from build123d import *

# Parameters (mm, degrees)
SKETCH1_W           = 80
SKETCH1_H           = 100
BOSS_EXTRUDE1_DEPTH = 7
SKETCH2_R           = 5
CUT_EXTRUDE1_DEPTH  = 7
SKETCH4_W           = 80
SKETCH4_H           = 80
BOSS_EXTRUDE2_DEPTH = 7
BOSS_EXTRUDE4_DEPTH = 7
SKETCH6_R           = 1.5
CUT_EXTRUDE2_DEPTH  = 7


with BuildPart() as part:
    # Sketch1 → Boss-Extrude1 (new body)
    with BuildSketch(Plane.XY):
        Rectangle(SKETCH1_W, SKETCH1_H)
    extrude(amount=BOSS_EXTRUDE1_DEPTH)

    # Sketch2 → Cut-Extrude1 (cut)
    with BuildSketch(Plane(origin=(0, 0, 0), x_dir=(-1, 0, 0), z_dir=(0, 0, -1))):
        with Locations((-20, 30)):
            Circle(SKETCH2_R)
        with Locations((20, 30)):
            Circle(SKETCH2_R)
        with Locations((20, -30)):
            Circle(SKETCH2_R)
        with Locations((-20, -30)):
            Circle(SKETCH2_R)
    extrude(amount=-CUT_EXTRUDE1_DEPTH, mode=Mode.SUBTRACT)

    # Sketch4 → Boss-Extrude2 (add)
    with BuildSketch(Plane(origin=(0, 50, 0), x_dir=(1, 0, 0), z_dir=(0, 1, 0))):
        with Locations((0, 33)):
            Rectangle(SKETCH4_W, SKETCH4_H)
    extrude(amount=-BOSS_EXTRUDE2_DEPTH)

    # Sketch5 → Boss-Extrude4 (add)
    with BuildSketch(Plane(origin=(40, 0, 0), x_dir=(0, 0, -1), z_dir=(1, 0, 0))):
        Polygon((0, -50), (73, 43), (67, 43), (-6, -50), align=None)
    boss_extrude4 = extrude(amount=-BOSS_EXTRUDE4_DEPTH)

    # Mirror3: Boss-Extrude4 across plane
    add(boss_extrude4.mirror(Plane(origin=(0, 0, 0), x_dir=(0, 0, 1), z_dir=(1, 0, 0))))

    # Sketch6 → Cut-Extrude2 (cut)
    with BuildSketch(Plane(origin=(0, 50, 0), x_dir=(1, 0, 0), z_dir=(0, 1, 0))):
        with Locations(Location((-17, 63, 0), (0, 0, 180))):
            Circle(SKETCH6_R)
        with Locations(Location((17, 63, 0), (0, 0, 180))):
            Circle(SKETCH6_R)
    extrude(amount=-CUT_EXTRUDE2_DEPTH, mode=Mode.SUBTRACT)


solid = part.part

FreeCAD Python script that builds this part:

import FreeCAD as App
import Part
import Sketcher
Q = App.Units.Quantity

doc = App.newDocument("Part")
params = doc.addObject("Spreadsheet::Sheet", "Params")
for row, (alias, value) in enumerate([
    ("sketch1_width", "80 mm"),
    ("sketch1_height", "100 mm"),
    ("pad1_length", "7 mm"),
    ("sketch2_diameter", "10 mm"),
    ("pocket1_length", "7 mm"),
    ("sketch3_width", "80 mm"),
    ("pad2_length", "7 mm"),
    ("sketch4_height", "6 mm"),
    ("pad3_length", "7 mm"),
    ("sketch5_diameter", "3 mm"),
    ("pocket2_length", "7 mm"),
], start=1):
    params.set(f"A{row}", alias)
    params.set(f"B{row}", "=" + value)
    params.setAlias(f"B{row}", alias)

body = doc.addObject("PartDesign::Body", "Body")

# Sketch on XY plane
sketch1 = doc.addObject("Sketcher::SketchObject", "Sketch")
body.addObject(sketch1)
sketch1.AttachmentSupport = (doc.XY_Plane, [""])
sketch1.MapMode = "FlatFace"
sketch1.addGeometry([
    Part.LineSegment(App.Vector(-40, 50, 0), App.Vector(-40, -50, 0)),
    Part.LineSegment(App.Vector(-40, -50, 0), App.Vector(40, -50, 0)),
    Part.LineSegment(App.Vector(40, -50, 0), App.Vector(40, 50, 0)),
    Part.LineSegment(App.Vector(40, 50, 0), App.Vector(-40, 50, 0)),
], False)
sketch1.addConstraint([
    Sketcher.Constraint("Coincident", 0, 2, 1, 1),
    Sketcher.Constraint("Coincident", 1, 2, 2, 1),
    Sketcher.Constraint("Coincident", 2, 2, 3, 1),
    Sketcher.Constraint("Coincident", 3, 2, 0, 1),
    Sketcher.Constraint("Vertical", 0),
    Sketcher.Constraint("Horizontal", 1),
    Sketcher.Constraint("Vertical", 2),
    Sketcher.Constraint("Horizontal", 3),
    Sketcher.Constraint("Symmetric", 0, 2, 2, 2, -1, 1),
    Sketcher.Constraint("DistanceX", 1, 1, 1, 2, Q("80 mm")),
    Sketcher.Constraint("DistanceY", 0, 2, 0, 1, Q("100 mm")),
])
sketch1.setExpression("Constraints[9]", "Params.sketch1_width")
sketch1.setExpression("Constraints[10]", "Params.sketch1_height")
pad1 = doc.addObject("PartDesign::Pad", "Pad")
body.addObject(pad1)
pad1.Profile = sketch1
pad1.setExpression("Length", "Params.pad1_length")

# Sketch on XY plane
sketch2 = doc.addObject("Sketcher::SketchObject", "Sketch001")
body.addObject(sketch2)
sketch2.AttachmentSupport = (doc.XY_Plane, [""])
sketch2.MapMode = "FlatFace"
sketch2.addGeometry([
    Part.Circle(App.Vector(20, 30, 0), App.Vector(0, 0, 1), 5),
    Part.Circle(App.Vector(-20, 30, 0), App.Vector(0, 0, 1), 5),
    Part.Circle(App.Vector(-20, -30, 0), App.Vector(0, 0, 1), 5),
    Part.Circle(App.Vector(20, -30, 0), App.Vector(0, 0, 1), 5),
], False)
sketch2.addConstraint([
    Sketcher.Constraint("Equal", 0, 1),
    Sketcher.Constraint("Equal", 1, 2),
    Sketcher.Constraint("Equal", 2, 3),
    Sketcher.Constraint("Symmetric", 0, 3, 2, 3, -1, 1),
    Sketcher.Constraint("Symmetric", 1, 3, 3, 3, -1, 1),
    Sketcher.Constraint("Symmetric", 0, 3, 1, 3, -2),
    Sketcher.Constraint("Diameter", 0, Q("10 mm")),
    Sketcher.Constraint("DistanceX", -1, 1, 0, 3, Q("20 mm")),
    Sketcher.Constraint("DistanceY", -1, 1, 0, 3, Q("30 mm")),
])
sketch2.setExpression("Constraints[6]", "Params.sketch2_diameter")
pocket1 = doc.addObject("PartDesign::Pocket", "Pocket")
body.addObject(pocket1)
pocket1.Profile = sketch2
pocket1.setExpression("Length", "Params.pocket1_length")
pocket1.Reversed = True

# Sketch on XZ plane
sketch3 = doc.addObject("Sketcher::SketchObject", "Sketch002")
body.addObject(sketch3)
sketch3.AttachmentSupport = (doc.XZ_Plane, [""])
sketch3.MapMode = "FlatFace"
sketch3.AttachmentOffset = App.Placement(App.Vector(0, 0, -50), App.Rotation())
sketch3.addGeometry([
    Part.LineSegment(App.Vector(-40, -73, 0), App.Vector(-40, 7, 0)),
    Part.LineSegment(App.Vector(-40, 7, 0), App.Vector(40, 7, 0)),
    Part.LineSegment(App.Vector(40, 7, 0), App.Vector(40, -73, 0)),
    Part.LineSegment(App.Vector(40, -73, 0), App.Vector(-40, -73, 0)),
], False)
sketch3.addConstraint([
    Sketcher.Constraint("Coincident", 0, 2, 1, 1),
    Sketcher.Constraint("Coincident", 1, 2, 2, 1),
    Sketcher.Constraint("Coincident", 2, 2, 3, 1),
    Sketcher.Constraint("Coincident", 3, 2, 0, 1),
    Sketcher.Constraint("Vertical", 0),
    Sketcher.Constraint("Horizontal", 1),
    Sketcher.Constraint("Vertical", 2),
    Sketcher.Constraint("Horizontal", 3),
    Sketcher.Constraint("Equal", 3, 0),
    Sketcher.Constraint("DistanceX", 1, 1, 1, 2, Q("80 mm")),
    Sketcher.Constraint("DistanceX", 0, 2, -1, 1, Q("40 mm")),
    Sketcher.Constraint("DistanceY", -1, 1, 0, 2, Q("7 mm")),
])
sketch3.setExpression("Constraints[9]", "Params.sketch3_width")
pad2 = doc.addObject("PartDesign::Pad", "Pad001")
body.addObject(pad2)
pad2.Profile = sketch3
pad2.setExpression("Length", "Params.pad2_length")

# Sketch on YZ plane
sketch4 = doc.addObject("Sketcher::SketchObject", "Sketch003")
body.addObject(sketch4)
sketch4.AttachmentSupport = (doc.YZ_Plane, [""])
sketch4.MapMode = "FlatFace"
sketch4.AttachmentOffset = App.Placement(App.Vector(0, 0, 40), App.Rotation())
sketch4.addGeometry([
    Part.LineSegment(App.Vector(-50, 0, 0), App.Vector(43, -73, 0)),
    Part.LineSegment(App.Vector(43, -73, 0), App.Vector(43, -67, 0)),
    Part.LineSegment(App.Vector(43, -67, 0), App.Vector(-50, 6, 0)),
    Part.LineSegment(App.Vector(-50, 6, 0), App.Vector(-50, 0, 0)),
], False)
sketch4.addConstraint([
    Sketcher.Constraint("Coincident", 0, 2, 1, 1),
    Sketcher.Constraint("Coincident", 1, 2, 2, 1),
    Sketcher.Constraint("Coincident", 2, 2, 3, 1),
    Sketcher.Constraint("Coincident", 3, 2, 0, 1),
    Sketcher.Constraint("Vertical", 1),
    Sketcher.Constraint("Vertical", 3),
    Sketcher.Constraint("PointOnObject", 3, 2, -1),
    Sketcher.Constraint("Parallel", 0, 2),
    Sketcher.Constraint("DistanceY", 1, 1, 1, 2, Q("6 mm")),
    Sketcher.Constraint("DistanceX", -1, 1, 0, 2, Q("43 mm")),
    Sketcher.Constraint("DistanceY", 0, 2, -1, 1, Q("73 mm")),
    Sketcher.Constraint("DistanceX", 2, 2, -1, 1, Q("50 mm")),
])
sketch4.setExpression("Constraints[8]", "Params.sketch4_height")
pad3 = doc.addObject("PartDesign::Pad", "Pad002")
body.addObject(pad3)
pad3.Profile = sketch4
pad3.setExpression("Length", "Params.pad3_length")
pad3.Reversed = True
doc.recompute()

mirrored = doc.addObject("PartDesign::Mirrored", "Mirrored")
body.addObject(mirrored)
mirrored.Originals = [pad3]
mirrored.MirrorPlane = (doc.YZ_Plane, [""])
body.Tip = mirrored

# Sketch on XZ plane
sketch5 = doc.addObject("Sketcher::SketchObject", "Sketch004")
body.addObject(sketch5)
sketch5.AttachmentSupport = (doc.XZ_Plane, [""])
sketch5.MapMode = "FlatFace"
sketch5.AttachmentOffset = App.Placement(App.Vector(0, 0, -50), App.Rotation())
sketch5.addGeometry([
    Part.Circle(App.Vector(-17, -63, 0), App.Vector(0, 0, 1), 1.5),
    Part.Circle(App.Vector(17, -63, 0), App.Vector(0, 0, 1), 1.5),
], False)
sketch5.addConstraint([
    Sketcher.Constraint("Equal", 0, 1),
    Sketcher.Constraint("Symmetric", 0, 3, 1, 3, -2),
    Sketcher.Constraint("Diameter", 0, Q("3 mm")),
    Sketcher.Constraint("DistanceX", 0, 3, -1, 1, Q("17 mm")),
    Sketcher.Constraint("DistanceY", 0, 3, -1, 1, Q("63 mm")),
])
sketch5.setExpression("Constraints[2]", "Params.sketch5_diameter")
pocket2 = doc.addObject("PartDesign::Pocket", "Pocket001")
body.addObject(pocket2)
pocket2.Profile = sketch5
pocket2.setExpression("Length", "Params.pocket2_length")
pocket2.Reversed = True

doc.recompute()
